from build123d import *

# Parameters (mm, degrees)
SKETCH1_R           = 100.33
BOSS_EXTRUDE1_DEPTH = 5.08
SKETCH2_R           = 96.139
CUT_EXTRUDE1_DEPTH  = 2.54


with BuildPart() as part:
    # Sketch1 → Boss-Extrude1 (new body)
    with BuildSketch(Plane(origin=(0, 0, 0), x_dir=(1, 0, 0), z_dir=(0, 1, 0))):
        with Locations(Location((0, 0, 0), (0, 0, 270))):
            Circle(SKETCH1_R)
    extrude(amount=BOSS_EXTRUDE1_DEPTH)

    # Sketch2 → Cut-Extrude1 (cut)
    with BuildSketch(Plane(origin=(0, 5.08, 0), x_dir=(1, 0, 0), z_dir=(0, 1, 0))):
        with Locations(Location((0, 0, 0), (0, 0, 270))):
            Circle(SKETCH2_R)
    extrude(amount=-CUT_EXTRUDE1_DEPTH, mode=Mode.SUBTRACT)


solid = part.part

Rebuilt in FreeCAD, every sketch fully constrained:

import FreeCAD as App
import Part
import Sketcher
from FreeCAD import Vector
Q = App.Units.Quantity

doc = App.newDocument("Part")
body = doc.addObject("PartDesign::Body", "Body")

sketch1 = body.newObject("Sketcher::SketchObject", "Sketch")
sketch1.AttachmentSupport = (doc.getObject("XZ_Plane"), [""])
sketch1.MapMode = "FlatFace"
sketch1.addGeometry(Part.Circle(Vector(0, 0, 0), Vector(0, 0, 1), 100), False)
sketch1.addConstraint([
    Sketcher.Constraint("Coincident", 0, 3, -1, 1),
    Sketcher.Constraint("Diameter", 0, Q("7.9 in")),
])
pad1 = body.newObject("PartDesign::Pad", "Pad")
pad1.Profile = sketch1
pad1.Length = Q("0.2 in")
pad1.Reversed = True

sketch2 = body.newObject("Sketcher::SketchObject", "Sketch001")
sketch2.AttachmentSupport = (doc.getObject("XZ_Plane"), [""])
sketch2.MapMode = "FlatFace"
sketch2.AttachmentOffset = App.Placement(Vector(0, 0, -0.2 * 25.4), App.Rotation())
sketch2.addGeometry(Part.Circle(Vector(0, 0, 0), Vector(0, 0, 1), 96), False)
sketch2.addConstraint([
    Sketcher.Constraint("Coincident", 0, 3, -1, 1),
    Sketcher.Constraint("Diameter", 0, Q("7.57 in")),
])
pocket1 = body.newObject("PartDesign::Pocket", "Pocket")
pocket1.Profile = sketch2
pocket1.Length = Q("0.1 in")
pocket1.Reversed = True

doc.recompute()
